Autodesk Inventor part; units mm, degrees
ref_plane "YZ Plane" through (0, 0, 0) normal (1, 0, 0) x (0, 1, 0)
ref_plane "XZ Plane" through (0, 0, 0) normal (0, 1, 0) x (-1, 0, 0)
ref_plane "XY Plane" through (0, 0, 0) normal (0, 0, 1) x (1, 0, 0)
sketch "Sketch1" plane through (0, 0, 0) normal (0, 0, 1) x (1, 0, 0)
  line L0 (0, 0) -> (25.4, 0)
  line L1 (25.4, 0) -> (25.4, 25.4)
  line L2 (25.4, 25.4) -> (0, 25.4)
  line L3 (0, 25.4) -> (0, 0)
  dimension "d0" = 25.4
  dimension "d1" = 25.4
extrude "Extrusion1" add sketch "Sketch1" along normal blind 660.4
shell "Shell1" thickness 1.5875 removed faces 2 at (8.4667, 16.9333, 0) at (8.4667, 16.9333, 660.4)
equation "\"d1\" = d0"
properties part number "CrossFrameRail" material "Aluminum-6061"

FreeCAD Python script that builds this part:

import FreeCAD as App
import Part
import Sketcher

V = App.Vector
Q = App.Units.Quantity


def faces_at(feature, points):
    """Names of the faces that lie closest to the given points."""
    faces = feature.Shape.Faces
    near = lambda p: min(range(len(faces)), key=lambda i: faces[i].distToShape(Part.Vertex(*p))[0])
    return sorted({f"Face{near(p) + 1}" for p in points})


def add_polygon(sketch, points):
    """Adds a closed chain of lines whose ends are joined by coincident constraints."""
    first, n = sketch.GeometryCount, len(points)
    for a, b in zip(points, points[1:] + points[:1]):
        sketch.addGeometry(Part.LineSegment(App.Vector(*a, 0), App.Vector(*b, 0)), False)
    for i in range(n):
        sketch.addConstraint(Sketcher.Constraint("Coincident", first + i, 2, first + (i + 1) % n, 1))

doc = App.newDocument("Part")
body = doc.addObject("PartDesign::Body", "Body")

# Sketch on XY plane
sketch1 = doc.addObject("Sketcher::SketchObject", "Sketch")
body.addObject(sketch1)
sketch1.AttachmentSupport = (doc.XY_Plane, [""])
sketch1.MapMode = "FlatFace"
add_polygon(sketch1, [(0, 25.4), (0, 0), (25.4, 0), (25.4, 25.4)])  # lines 0-3
sketch1.addConstraint([
    Sketcher.Constraint("Vertical", 0),
    Sketcher.Constraint("Horizontal", 1),
    Sketcher.Constraint("Vertical", 2),
    Sketcher.Constraint("Horizontal", 3),
    Sketcher.Constraint("Coincident", 0, 2, -1, 1),
    Sketcher.Constraint("Equal", 3, 0),
    Sketcher.Constraint("DistanceX", 1, 1, 1, 2, Q("1 in")),
])
pad1 = doc.addObject("PartDesign::Pad", "Pad")
body.addObject(pad1)
pad1.Profile = sketch1
pad1.Length = Q("26 in")
doc.recompute()

thickness = doc.addObject("PartDesign::Thickness", "Thickness")
body.addObject(thickness)
thickness.Base = (pad1, faces_at(pad1, [(8.467, 16.933, 0), (8.467, 16.933, 660.4)]))
thickness.Value = Q("0.0625 in")
thickness.Reversed = True
thickness.Join = "Intersection"

doc.recompute()
